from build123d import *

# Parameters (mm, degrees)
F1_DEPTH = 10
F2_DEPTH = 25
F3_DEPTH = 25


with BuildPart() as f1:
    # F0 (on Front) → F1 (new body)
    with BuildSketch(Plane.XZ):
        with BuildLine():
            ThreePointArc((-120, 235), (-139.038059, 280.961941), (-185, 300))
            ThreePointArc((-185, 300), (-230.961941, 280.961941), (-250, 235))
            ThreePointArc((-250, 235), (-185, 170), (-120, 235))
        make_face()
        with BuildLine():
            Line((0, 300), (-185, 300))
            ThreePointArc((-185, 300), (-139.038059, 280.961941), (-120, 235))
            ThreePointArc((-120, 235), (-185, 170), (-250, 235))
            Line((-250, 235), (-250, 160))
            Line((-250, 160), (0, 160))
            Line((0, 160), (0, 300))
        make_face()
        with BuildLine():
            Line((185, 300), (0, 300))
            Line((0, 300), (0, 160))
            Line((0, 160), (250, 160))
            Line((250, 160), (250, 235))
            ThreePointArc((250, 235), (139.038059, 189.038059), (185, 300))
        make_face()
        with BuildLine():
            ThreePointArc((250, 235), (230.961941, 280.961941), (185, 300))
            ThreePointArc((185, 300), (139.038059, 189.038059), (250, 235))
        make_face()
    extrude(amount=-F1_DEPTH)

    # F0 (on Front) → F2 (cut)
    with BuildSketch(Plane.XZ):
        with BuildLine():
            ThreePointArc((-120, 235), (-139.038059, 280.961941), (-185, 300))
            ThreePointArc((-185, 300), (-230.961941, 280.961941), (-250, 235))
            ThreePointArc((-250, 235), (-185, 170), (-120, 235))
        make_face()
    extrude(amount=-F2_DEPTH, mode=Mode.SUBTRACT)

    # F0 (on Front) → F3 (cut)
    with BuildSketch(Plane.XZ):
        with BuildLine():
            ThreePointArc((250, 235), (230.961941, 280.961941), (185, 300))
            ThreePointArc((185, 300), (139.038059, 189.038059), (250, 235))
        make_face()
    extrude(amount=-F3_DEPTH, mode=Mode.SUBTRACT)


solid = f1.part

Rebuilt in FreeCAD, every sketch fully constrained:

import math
import FreeCAD as App
import Part
import Sketcher
from FreeCAD import Vector
Q = App.Units.Quantity

doc = App.newDocument("Part")
body = doc.addObject("PartDesign::Body", "Body")

# Sketch on XZ plane
sketch1 = doc.addObject("Sketcher::SketchObject", "Sketch")
body.addObject(sketch1)
sketch1.AttachmentSupport = (doc.XZ_Plane, [""])
sketch1.MapMode = "FlatFace"
sketch1.addGeometry([
    Part.ArcOfCircle(Part.Circle(Vector(-185, 235, 0), Vector(0, 0, 1), 65), math.radians(90), math.radians(180)),  # 0
    Part.LineSegment(Vector(-250, 235, 0), Vector(-250, 160, 0)),  # 1
    Part.LineSegment(Vector(-250, 160, 0), Vector(250, 160, 0)),  # 2
    Part.LineSegment(Vector(250, 160, 0), Vector(250, 235, 0)),  # 3
    Part.ArcOfCircle(Part.Circle(Vector(185, 235, 0), Vector(0, 0, 1), 65), math.radians(0), math.radians(90)),  # 4
    Part.LineSegment(Vector(185, 300, 0), Vector(-185, 300, 0)),  # 5
], False)
sketch1.addConstraint([
    Sketcher.Constraint("Tangent", 0, 2, 1, 1),
    Sketcher.Constraint("Coincident", 1, 2, 2, 1),
    Sketcher.Constraint("Coincident", 2, 2, 3, 1),
    Sketcher.Constraint("Tangent", 3, 2, 4, 1),
    Sketcher.Constraint("Tangent", 4, 2, 5, 1),
    Sketcher.Constraint("Tangent", 5, 2, 0, 1),
    Sketcher.Constraint("Vertical", 1),
    Sketcher.Constraint("Horizontal", 2),
    Sketcher.Constraint("Vertical", 3),
    Sketcher.Constraint("Horizontal", 5),
    Sketcher.Constraint("Equal", 0, 4),
    Sketcher.Constraint("Radius", 0, Q("64.999999 mm")),
    Sketcher.Constraint("DistanceX", 2, 1, 2, 2, Q("500 mm")),
    Sketcher.Constraint("DistanceY", 1, 2, 1, 1, Q("75 mm")),
    Sketcher.Constraint("DistanceX", 0, 3, -1, 1, Q("185.000001 mm")),
    Sketcher.Constraint("DistanceY", -1, 1, 0, 3, Q("235.000001 mm")),
])
pad1 = doc.addObject("PartDesign::Pad", "Pad")
body.addObject(pad1)
pad1.Profile = sketch1
pad1.Length = 10
pad1.Reversed = True

# Sketch on XZ plane
sketch2 = doc.addObject("Sketcher::SketchObject", "Sketch001")
body.addObject(sketch2)
sketch2.AttachmentSupport = (doc.XZ_Plane, [""])
sketch2.MapMode = "FlatFace"
sketch2.addGeometry([
    Part.ArcOfCircle(Part.Circle(Vector(-185, 235, 0), Vector(0, 0, 1), 65), math.radians(0), math.radians(90)),
    Part.ArcOfCircle(Part.Circle(Vector(-185, 235, 0), Vector(0, 0, 1), 65), math.radians(90), math.radians(180)),
    Part.ArcOfCircle(Part.Circle(Vector(-185, 235, 0), Vector(0, 0, 1), 65), math.radians(180), math.radians(360)),
], False)
sketch2.addConstraint([
    Sketcher.Constraint("Tangent", 0, 2, 1, 1),
    Sketcher.Constraint("Tangent", 1, 2, 2, 1),
    Sketcher.Constraint("Tangent", 2, 2, 0, 1),
    Sketcher.Constraint("Horizontal", 2, 3, 1, 2),
    Sketcher.Constraint("Horizontal", 1, 2, 2, 2),
    Sketcher.Constraint("Vertical", 2, 3, 0, 2),
    Sketcher.Constraint("Radius", 0, Q("64.999999 mm")),
    Sketcher.Constraint("DistanceX", 0, 3, -1, 1, Q("184.999999 mm")),
    Sketcher.Constraint("DistanceY", -1, 1, 0, 3, Q("235.000001 mm")),
])
pocket1 = doc.addObject("PartDesign::Pocket", "Pocket")
body.addObject(pocket1)
pocket1.Profile = sketch2
pocket1.Length = 25

# Sketch on XZ plane
sketch3 = doc.addObject("Sketcher::SketchObject", "Sketch002")
body.addObject(sketch3)
sketch3.AttachmentSupport = (doc.XZ_Plane, [""])
sketch3.MapMode = "FlatFace"
sketch3.addGeometry([
    Part.ArcOfCircle(Part.Circle(Vector(185, 235, 0), Vector(0, 0, 1), 65), math.radians(0), math.radians(90)),
    Part.ArcOfCircle(Part.Circle(Vector(185, 235, 0), Vector(0, 0, 1), 65), math.radians(90), math.radians(360)),
], False)
sketch3.addConstraint([
    Sketcher.Constraint("Tangent", 0, 1, 1, 2),
    Sketcher.Constraint("Coincident", 1, 1, 0, 2),
    Sketcher.Constraint("Horizontal", 1, 3, 0, 1),
    Sketcher.Constraint("Vertical", 0, 3, 1, 1),
    Sketcher.Constraint("Radius", 0, Q("64.999999 mm")),
    Sketcher.Constraint("DistanceX", -1, 1, 0, 3, Q("185.000001 mm")),
    Sketcher.Constraint("DistanceY", -1, 1, 0, 3, Q("235.000001 mm")),
])
pocket2 = doc.addObject("PartDesign::Pocket", "Pocket001")
body.addObject(pocket2)
pocket2.Profile = sketch3
pocket2.Length = 25

doc.recompute()
